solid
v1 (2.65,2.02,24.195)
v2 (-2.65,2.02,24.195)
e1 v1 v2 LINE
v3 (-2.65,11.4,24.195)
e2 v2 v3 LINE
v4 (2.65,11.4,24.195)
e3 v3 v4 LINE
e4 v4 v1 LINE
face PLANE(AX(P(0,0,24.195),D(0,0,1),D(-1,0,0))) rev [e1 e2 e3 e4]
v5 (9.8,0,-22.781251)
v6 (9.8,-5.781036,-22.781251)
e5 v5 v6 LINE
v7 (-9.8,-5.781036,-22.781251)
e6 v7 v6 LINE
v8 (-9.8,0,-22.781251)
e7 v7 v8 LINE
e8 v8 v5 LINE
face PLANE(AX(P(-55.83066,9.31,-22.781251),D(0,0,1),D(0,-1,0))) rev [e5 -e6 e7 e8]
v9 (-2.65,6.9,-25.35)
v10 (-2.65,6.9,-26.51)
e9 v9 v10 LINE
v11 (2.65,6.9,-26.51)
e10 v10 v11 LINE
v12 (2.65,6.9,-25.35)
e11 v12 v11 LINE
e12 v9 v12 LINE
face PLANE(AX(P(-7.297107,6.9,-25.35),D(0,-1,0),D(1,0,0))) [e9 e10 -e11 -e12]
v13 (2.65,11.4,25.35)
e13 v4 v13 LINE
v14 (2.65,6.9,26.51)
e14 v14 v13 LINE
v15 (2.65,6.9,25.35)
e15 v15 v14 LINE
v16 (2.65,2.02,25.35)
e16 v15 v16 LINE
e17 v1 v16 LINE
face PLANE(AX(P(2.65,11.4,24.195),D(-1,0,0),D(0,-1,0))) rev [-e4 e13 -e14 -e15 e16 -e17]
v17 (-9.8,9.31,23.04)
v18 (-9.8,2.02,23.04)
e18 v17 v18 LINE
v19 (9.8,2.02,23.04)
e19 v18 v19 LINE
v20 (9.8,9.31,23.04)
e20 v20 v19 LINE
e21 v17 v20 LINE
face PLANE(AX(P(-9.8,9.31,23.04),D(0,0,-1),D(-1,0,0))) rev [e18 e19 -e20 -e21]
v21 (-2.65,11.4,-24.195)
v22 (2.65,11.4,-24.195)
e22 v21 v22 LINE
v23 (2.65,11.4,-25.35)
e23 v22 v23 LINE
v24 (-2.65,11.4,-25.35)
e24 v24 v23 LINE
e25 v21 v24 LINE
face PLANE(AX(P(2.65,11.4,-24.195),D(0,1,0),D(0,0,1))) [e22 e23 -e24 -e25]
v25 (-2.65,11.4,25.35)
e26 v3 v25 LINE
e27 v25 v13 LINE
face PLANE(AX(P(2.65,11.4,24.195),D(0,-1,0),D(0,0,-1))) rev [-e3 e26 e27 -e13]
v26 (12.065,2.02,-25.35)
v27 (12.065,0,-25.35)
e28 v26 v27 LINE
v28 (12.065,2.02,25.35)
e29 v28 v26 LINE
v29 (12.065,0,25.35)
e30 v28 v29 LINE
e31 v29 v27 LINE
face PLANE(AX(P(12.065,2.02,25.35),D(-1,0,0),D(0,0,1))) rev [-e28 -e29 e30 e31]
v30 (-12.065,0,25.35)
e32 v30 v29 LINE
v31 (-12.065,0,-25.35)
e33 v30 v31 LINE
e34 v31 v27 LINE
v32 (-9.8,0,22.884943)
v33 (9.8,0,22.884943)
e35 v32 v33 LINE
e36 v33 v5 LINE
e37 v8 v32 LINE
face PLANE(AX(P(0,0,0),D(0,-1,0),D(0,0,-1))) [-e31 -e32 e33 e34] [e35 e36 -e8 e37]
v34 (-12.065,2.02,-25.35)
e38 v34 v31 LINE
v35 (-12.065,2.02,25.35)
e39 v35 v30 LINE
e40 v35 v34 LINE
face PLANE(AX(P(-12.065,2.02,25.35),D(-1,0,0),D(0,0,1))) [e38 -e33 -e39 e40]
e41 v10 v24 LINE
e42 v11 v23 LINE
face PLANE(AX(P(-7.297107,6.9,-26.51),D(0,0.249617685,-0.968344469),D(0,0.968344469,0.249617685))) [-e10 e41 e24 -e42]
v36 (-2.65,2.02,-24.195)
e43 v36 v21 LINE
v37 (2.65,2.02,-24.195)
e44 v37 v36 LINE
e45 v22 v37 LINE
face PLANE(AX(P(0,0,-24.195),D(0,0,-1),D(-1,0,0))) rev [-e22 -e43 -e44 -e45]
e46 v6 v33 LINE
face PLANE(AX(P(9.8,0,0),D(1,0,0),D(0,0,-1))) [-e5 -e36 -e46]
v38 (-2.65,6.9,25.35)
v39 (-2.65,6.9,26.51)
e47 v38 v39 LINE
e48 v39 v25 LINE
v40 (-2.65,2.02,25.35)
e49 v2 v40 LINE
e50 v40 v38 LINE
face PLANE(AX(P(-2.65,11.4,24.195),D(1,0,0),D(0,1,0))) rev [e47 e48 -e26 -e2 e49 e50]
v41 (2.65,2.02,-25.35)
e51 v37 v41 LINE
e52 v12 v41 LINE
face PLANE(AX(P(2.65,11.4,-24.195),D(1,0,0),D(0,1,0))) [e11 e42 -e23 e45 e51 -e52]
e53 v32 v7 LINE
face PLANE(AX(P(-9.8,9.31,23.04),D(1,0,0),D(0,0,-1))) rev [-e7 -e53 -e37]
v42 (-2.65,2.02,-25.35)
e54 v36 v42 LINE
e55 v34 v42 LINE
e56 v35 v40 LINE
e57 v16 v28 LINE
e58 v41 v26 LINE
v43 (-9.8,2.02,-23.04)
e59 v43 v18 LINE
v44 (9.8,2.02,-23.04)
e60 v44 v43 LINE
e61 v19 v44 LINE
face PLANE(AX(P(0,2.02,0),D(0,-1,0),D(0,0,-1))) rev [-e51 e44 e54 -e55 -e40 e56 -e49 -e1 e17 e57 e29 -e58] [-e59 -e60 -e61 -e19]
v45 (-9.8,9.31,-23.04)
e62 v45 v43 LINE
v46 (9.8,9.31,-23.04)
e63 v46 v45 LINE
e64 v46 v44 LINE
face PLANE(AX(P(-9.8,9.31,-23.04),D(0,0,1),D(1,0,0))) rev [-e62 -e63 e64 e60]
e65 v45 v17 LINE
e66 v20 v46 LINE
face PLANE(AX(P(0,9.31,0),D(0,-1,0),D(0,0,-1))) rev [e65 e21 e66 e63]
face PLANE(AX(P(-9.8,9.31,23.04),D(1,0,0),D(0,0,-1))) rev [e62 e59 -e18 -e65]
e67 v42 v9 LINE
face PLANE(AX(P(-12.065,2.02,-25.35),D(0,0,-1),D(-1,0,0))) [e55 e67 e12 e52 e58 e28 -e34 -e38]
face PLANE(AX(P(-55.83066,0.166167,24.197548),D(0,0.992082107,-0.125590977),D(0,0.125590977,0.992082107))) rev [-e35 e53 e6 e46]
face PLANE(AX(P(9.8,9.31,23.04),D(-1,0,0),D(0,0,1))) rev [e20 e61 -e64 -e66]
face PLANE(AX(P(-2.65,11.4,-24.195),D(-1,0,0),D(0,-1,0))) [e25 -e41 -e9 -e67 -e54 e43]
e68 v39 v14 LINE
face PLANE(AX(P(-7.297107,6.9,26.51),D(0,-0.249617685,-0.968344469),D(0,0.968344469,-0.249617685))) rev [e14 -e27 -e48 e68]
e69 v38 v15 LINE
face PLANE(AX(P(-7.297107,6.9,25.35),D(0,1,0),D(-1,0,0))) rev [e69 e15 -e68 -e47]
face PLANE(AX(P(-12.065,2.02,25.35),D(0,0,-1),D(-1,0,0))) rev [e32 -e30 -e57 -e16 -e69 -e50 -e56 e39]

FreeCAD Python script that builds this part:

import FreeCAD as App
import Part
import Sketcher
from FreeCAD import Vector


def add_polygon(sketch, points):
    """Adds a closed chain of lines whose ends are joined by coincident constraints."""
    first, n = sketch.GeometryCount, len(points)
    for a, b in zip(points, points[1:] + points[:1]):
        sketch.addGeometry(Part.LineSegment(App.Vector(*a, 0), App.Vector(*b, 0)), False)
    for i in range(n):
        sketch.addConstraint(Sketcher.Constraint("Coincident", first + i, 2, first + (i + 1) % n, 1))

doc = App.newDocument("Part")
body = doc.addObject("PartDesign::Body", "Body")

# Sketch on XZ plane
sketch1 = body.newObject("Sketcher::SketchObject", "Sketch")
sketch1.AttachmentSupport = (doc.getObject("XZ_Plane"), [""])
sketch1.MapMode = "FlatFace"
add_polygon(sketch1, [(-12.065, -25.35), (-12.065, 25.35), (12.065, 25.35), (12.065, -25.35)])  # lines 0-3
sketch1.addConstraint(Sketcher.Constraint("Vertical", 0))
sketch1.addConstraint(Sketcher.Constraint("Horizontal", 1))
sketch1.addConstraint(Sketcher.Constraint("Vertical", 2))
sketch1.addConstraint(Sketcher.Constraint("Horizontal", 3))
sketch1.addConstraint(Sketcher.Constraint("Symmetric", 0, 2, 2, 2, -1, 1))
sketch1.addConstraint(Sketcher.Constraint("DistanceY", 0, 1, 0, 2, 50.7))
sketch1.addConstraint(Sketcher.Constraint("DistanceX", 1, 1, 1, 2, 24.13))
pad1 = body.newObject("PartDesign::Pad", "Pad")
pad1.Profile = sketch1
pad1.Length = 2.02
pad1.Reversed = True

# Sketch on XZ plane
sketch2 = body.newObject("Sketcher::SketchObject", "Sketch001")
sketch2.AttachmentSupport = (doc.getObject("XZ_Plane"), [""])
sketch2.MapMode = "FlatFace"
sketch2.AttachmentOffset = App.Placement(Vector(0, 0, -2.02), App.Rotation())
add_polygon(sketch2, [(-9.8, -23.04), (-9.8, 23.04), (9.8, 23.04), (9.8, -23.04)])  # lines 0-3
sketch2.addConstraint(Sketcher.Constraint("Vertical", 0))
sketch2.addConstraint(Sketcher.Constraint("Horizontal", 1))
sketch2.addConstraint(Sketcher.Constraint("Vertical", 2))
sketch2.addConstraint(Sketcher.Constraint("Horizontal", 3))
sketch2.addConstraint(Sketcher.Constraint("Symmetric", 0, 2, 2, 2, -1, 1))
sketch2.addConstraint(Sketcher.Constraint("DistanceX", 1, 1, 1, 2, 19.6))
sketch2.addConstraint(Sketcher.Constraint("DistanceY", 0, 1, 0, 2, 46.08))
pad2 = body.newObject("PartDesign::Pad", "Pad001")
pad2.Profile = sketch2
pad2.Length = 7.29
pad2.Reversed = True

# Sketch on YZ plane
sketch3 = body.newObject("Sketcher::SketchObject", "Sketch002")
sketch3.AttachmentSupport = (doc.getObject("YZ_Plane"), [""])
sketch3.MapMode = "FlatFace"
sketch3.AttachmentOffset = App.Placement(Vector(0, 0, 9.8), App.Rotation())
add_polygon(sketch3, [(0, 22.884943), (-5.781036, -22.781251), (0, -22.781251)])  # lines 0-2
sketch3.addConstraint(Sketcher.Constraint("Horizontal", 1))
sketch3.addConstraint(Sketcher.Constraint("Vertical", 2))
sketch3.addConstraint(Sketcher.Constraint("PointOnObject", 1, 2, -2))
sketch3.addConstraint(Sketcher.Constraint("Distance", 0, 46.03066))
sketch3.addConstraint(Sketcher.Constraint("DistanceX", 1, 1, 1, 2, 5.781036))
sketch3.addConstraint(Sketcher.Constraint("DistanceY", 0, 2, -1, 1, 22.781251))
pad3 = body.newObject("PartDesign::Pad", "Pad002")
pad3.Profile = sketch3
pad3.Length = 19.6
pad3.Reversed = True

# Sketch on XY plane
sketch4 = body.newObject("Sketcher::SketchObject", "Sketch003")
sketch4.AttachmentSupport = (doc.getObject("XY_Plane"), [""])
sketch4.MapMode = "FlatFace"
sketch4.AttachmentOffset = App.Placement(Vector(0, 0, -25.35), App.Rotation())
add_polygon(sketch4, [(2.65, 11.4), (2.65, 2.02), (-2.65, 2.02), (-2.65, 11.4)])  # lines 0-3
sketch4.addConstraint(Sketcher.Constraint("Vertical", 0))
sketch4.addConstraint(Sketcher.Constraint("Horizontal", 1))
sketch4.addConstraint(Sketcher.Constraint("Vertical", 2))
sketch4.addConstraint(Sketcher.Constraint("Horizontal", 3))
sketch4.addConstraint(Sketcher.Constraint("DistanceX", 1, 2, 1, 1, 5.3))
sketch4.addConstraint(Sketcher.Constraint("DistanceY", 0, 2, 0, 1, 9.38))
sketch4.addConstraint(Sketcher.Constraint("DistanceY", -1, 1, 2, 2, 11.4))
sketch4.addConstraint(Sketcher.Constraint("DistanceX", -1, 1, 0, 2, 2.65))
pad4 = body.newObject("PartDesign::Pad", "Pad003")
pad4.Profile = sketch4
pad4.Length = 1.155

# Sketch on YZ plane
sketch5 = body.newObject("Sketcher::SketchObject", "Sketch004")
sketch5.AttachmentSupport = (doc.getObject("YZ_Plane"), [""])
sketch5.MapMode = "FlatFace"
sketch5.AttachmentOffset = App.Placement(Vector(0, 0, 2.65), App.Rotation())
add_polygon(sketch5, [(11.4, -25.35), (6.9, -25.35), (6.9, -26.51)])  # lines 0-2
sketch5.addConstraint(Sketcher.Constraint("Horizontal", 0))
sketch5.addConstraint(Sketcher.Constraint("Vertical", 1))
sketch5.addConstraint(Sketcher.Constraint("DistanceX", 0, 2, 0, 1, 4.5))
sketch5.addConstraint(Sketcher.Constraint("DistanceY", 1, 2, 1, 1, 1.16))
sketch5.addConstraint(Sketcher.Constraint("DistanceX", -1, 1, 0, 2, 6.9))
sketch5.addConstraint(Sketcher.Constraint("DistanceY", 0, 2, -1, 1, 25.35))
pad5 = body.newObject("PartDesign::Pad", "Pad004")
pad5.Profile = sketch5
pad5.Length = 5.3
pad5.Reversed = True
doc.recompute()

mirrored = body.newObject("PartDesign::Mirrored", "Mirrored")
mirrored.Originals = [pad4, pad5]
mirrored.MirrorPlane = (doc.getObject("XY_Plane"), [""])
body.Tip = mirrored

doc.recompute()
